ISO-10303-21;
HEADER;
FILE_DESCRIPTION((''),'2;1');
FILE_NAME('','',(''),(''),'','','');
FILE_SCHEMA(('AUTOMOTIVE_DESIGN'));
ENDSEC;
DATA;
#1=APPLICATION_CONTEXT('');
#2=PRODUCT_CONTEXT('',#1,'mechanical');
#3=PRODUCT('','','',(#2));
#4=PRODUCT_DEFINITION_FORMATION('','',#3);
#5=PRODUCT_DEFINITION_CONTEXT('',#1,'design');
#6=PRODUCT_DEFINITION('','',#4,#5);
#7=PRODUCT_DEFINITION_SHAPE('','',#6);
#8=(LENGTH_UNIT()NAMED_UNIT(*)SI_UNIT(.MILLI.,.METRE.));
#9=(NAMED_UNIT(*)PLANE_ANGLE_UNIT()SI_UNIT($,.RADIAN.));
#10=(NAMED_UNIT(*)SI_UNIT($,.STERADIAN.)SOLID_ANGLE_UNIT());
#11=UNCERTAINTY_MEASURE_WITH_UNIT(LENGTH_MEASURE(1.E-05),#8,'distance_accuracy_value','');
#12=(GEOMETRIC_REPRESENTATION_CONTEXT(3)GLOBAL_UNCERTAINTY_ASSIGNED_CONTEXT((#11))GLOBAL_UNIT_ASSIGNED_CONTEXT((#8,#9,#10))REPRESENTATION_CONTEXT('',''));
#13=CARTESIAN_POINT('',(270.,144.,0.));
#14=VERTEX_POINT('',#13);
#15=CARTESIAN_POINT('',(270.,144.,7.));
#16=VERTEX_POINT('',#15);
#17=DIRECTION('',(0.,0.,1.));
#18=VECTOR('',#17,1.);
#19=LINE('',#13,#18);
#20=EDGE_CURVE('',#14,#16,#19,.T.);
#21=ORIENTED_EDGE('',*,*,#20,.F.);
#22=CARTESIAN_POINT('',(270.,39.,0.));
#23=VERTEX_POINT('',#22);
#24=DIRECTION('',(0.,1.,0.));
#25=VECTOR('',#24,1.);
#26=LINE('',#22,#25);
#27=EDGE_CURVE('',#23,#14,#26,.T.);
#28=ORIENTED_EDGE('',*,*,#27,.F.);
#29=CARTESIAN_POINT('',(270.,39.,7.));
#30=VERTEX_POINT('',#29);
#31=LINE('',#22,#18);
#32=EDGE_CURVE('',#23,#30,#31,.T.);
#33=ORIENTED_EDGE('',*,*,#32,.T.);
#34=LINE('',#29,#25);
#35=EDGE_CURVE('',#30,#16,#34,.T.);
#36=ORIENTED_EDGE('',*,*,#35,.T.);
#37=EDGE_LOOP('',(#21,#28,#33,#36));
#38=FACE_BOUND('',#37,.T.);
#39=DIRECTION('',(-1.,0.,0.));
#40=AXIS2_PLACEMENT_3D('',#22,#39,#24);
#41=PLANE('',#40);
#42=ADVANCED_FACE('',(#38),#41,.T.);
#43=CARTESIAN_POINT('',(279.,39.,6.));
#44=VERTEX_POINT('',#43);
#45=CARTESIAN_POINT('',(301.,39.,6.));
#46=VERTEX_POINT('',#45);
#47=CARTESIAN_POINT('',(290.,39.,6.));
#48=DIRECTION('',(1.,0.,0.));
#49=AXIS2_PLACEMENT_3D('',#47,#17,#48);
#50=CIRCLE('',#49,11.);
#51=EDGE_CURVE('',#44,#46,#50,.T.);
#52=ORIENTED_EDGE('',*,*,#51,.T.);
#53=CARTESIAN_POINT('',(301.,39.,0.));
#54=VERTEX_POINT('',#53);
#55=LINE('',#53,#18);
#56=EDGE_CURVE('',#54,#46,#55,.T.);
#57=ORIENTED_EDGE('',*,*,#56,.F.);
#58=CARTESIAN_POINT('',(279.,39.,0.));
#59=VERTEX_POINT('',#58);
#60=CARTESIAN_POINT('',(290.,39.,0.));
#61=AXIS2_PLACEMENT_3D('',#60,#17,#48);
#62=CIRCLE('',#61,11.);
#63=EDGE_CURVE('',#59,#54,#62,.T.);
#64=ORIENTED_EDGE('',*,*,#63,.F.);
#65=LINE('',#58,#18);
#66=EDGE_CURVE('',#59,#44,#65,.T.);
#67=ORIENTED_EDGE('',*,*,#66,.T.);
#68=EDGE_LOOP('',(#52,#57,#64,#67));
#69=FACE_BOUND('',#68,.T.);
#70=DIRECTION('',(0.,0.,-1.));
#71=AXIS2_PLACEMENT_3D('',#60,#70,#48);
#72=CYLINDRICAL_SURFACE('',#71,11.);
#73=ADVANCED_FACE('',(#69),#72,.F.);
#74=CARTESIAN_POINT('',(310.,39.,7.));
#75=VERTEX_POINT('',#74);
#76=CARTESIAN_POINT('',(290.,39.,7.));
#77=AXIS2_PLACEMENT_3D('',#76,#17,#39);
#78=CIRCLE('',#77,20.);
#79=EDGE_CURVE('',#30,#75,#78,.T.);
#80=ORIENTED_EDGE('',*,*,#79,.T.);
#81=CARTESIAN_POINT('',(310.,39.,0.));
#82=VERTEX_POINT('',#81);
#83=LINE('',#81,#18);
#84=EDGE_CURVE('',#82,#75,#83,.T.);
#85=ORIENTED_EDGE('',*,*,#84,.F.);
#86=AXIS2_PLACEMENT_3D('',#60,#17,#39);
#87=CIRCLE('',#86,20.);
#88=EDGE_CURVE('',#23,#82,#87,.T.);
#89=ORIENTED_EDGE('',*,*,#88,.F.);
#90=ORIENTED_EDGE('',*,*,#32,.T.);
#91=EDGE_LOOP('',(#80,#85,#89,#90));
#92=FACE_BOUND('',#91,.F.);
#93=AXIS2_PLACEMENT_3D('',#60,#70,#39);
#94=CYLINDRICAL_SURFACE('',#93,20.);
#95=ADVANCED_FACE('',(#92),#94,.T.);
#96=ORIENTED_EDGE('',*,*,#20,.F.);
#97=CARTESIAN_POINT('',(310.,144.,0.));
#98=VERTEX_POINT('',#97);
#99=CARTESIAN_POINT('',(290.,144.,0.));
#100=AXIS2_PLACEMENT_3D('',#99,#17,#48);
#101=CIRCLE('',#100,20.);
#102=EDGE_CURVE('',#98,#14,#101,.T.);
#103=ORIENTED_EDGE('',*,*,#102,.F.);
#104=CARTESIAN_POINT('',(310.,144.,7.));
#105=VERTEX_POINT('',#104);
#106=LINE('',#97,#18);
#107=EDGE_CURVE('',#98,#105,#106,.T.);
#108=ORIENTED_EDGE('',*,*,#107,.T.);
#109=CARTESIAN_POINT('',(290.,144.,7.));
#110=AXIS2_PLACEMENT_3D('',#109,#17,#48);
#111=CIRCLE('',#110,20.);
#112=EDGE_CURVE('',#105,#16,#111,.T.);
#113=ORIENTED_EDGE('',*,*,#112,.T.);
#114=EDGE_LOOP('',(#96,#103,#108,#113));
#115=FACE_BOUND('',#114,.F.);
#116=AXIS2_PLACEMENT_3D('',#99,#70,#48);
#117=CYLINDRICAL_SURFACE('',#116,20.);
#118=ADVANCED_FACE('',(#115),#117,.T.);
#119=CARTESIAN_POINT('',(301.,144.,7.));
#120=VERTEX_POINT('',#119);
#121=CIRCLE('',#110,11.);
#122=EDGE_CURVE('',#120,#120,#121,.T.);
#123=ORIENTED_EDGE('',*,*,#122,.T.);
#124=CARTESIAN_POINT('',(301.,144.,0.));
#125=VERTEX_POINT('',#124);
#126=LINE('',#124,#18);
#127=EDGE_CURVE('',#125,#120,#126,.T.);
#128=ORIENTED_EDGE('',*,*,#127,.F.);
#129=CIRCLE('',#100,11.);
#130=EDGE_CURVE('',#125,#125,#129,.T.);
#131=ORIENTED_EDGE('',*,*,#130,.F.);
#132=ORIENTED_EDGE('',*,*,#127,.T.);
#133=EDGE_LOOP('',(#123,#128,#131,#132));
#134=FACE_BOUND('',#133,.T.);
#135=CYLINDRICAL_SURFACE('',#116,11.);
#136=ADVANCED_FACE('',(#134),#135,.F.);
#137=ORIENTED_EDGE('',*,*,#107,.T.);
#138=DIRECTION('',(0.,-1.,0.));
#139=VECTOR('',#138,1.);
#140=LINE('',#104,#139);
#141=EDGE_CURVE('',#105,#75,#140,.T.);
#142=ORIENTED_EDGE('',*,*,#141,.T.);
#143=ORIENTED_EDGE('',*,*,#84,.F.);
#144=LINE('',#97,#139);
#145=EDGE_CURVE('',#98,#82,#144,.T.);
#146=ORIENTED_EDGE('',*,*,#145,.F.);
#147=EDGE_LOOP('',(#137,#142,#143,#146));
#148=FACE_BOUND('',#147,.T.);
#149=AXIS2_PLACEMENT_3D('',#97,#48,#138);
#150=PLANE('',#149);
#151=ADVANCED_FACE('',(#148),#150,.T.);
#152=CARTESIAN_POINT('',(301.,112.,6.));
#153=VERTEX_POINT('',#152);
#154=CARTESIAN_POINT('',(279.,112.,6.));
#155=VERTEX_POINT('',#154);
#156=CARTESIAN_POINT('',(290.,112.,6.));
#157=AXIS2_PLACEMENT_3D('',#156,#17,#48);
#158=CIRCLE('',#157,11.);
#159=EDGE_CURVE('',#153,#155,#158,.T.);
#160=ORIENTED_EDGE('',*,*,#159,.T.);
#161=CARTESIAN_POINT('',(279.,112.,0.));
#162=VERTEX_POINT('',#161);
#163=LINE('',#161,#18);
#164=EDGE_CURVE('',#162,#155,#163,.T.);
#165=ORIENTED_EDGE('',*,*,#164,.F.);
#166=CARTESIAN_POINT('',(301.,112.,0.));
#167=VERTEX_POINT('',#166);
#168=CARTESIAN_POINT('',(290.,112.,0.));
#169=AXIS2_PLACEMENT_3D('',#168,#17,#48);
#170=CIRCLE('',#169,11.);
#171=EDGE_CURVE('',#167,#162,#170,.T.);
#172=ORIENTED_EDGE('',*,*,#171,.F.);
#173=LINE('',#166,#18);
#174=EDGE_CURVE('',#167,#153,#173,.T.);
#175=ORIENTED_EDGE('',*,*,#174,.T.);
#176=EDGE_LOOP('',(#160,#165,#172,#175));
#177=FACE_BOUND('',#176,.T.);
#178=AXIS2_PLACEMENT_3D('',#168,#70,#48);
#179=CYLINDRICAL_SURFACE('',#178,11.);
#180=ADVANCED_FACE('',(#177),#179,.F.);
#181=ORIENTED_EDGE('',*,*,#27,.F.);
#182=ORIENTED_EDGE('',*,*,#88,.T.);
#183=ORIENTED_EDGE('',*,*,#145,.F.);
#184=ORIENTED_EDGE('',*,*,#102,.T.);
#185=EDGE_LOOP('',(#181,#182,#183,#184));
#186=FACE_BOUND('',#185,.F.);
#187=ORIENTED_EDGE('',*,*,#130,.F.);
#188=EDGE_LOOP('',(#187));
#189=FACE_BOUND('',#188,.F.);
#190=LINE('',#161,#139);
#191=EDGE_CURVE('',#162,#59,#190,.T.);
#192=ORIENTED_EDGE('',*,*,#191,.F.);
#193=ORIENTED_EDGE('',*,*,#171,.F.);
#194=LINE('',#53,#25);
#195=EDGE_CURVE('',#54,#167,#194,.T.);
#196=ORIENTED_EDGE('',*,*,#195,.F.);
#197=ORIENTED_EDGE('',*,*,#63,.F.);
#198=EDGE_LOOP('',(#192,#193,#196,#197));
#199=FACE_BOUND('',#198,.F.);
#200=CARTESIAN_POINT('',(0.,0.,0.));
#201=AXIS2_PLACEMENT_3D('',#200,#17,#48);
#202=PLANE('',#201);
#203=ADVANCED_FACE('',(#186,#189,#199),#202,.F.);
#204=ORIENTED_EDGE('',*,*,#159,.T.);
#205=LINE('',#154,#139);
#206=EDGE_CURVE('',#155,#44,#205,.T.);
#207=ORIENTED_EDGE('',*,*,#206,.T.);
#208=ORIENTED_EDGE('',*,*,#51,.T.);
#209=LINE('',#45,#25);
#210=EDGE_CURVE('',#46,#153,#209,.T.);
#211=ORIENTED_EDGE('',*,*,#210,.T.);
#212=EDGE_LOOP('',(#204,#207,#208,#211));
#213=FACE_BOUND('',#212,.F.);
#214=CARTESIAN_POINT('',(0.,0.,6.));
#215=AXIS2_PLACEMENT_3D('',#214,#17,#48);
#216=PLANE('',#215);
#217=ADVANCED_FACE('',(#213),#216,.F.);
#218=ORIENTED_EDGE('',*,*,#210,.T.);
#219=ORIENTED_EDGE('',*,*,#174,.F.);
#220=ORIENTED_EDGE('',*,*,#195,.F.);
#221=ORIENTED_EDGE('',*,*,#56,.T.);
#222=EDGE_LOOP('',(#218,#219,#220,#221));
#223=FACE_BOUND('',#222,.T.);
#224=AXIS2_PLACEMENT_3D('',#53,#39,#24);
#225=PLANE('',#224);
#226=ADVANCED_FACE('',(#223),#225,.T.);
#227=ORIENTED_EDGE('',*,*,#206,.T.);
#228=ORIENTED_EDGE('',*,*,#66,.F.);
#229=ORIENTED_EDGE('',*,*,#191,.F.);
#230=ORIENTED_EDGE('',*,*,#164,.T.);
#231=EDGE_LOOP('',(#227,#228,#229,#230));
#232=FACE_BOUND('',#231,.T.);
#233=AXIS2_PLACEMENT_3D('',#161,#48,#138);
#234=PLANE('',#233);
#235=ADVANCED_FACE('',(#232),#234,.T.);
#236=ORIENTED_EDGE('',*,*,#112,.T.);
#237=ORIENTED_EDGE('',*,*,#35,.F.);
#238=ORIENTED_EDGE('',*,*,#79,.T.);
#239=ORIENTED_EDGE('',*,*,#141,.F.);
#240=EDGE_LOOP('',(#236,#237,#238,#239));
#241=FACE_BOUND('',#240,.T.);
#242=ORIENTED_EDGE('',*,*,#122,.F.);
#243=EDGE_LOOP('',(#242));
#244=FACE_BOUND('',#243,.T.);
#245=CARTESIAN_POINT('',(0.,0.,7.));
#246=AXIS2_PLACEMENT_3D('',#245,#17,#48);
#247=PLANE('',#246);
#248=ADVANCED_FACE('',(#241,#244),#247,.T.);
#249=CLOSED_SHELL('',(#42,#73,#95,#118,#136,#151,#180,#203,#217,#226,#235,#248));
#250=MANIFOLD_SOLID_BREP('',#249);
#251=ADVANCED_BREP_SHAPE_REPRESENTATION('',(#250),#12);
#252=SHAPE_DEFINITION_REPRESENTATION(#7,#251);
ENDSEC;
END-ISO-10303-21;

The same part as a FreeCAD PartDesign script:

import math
import FreeCAD as App
import Part
import Sketcher

doc = App.newDocument("Part")
body = doc.addObject("PartDesign::Body", "Body")

sketch1 = doc.addObject("Sketcher::SketchObject", "Sketch")
body.addObject(sketch1)
sketch1.AttachmentSupport = (doc.XY_Plane, [""])
sketch1.MapMode = "FlatFace"
sketch1.addGeometry(Part.LineSegment(App.Vector(310, 39, 0), App.Vector(310, 144, 0)), False)
sketch1.addGeometry(Part.ArcOfCircle(Part.Circle(App.Vector(290, 144, 0), App.Vector(0, 0, 1), 20), math.radians(0), math.radians(180)), False)
sketch1.addGeometry(Part.LineSegment(App.Vector(270, 144, 0), App.Vector(270, 39, 0)), False)
sketch1.addGeometry(Part.ArcOfCircle(Part.Circle(App.Vector(290, 39, 0), App.Vector(0, 0, 1), 20), math.radians(180), math.radians(360)), False)
sketch1.addGeometry(Part.Circle(App.Vector(290, 144, 0), App.Vector(0, 0, 1), 11), False)
sketch1.addConstraint(Sketcher.Constraint("Tangent", 0, 2, 1, 1))
sketch1.addConstraint(Sketcher.Constraint("Tangent", 1, 2, 2, 1))
sketch1.addConstraint(Sketcher.Constraint("Tangent", 2, 2, 3, 1))
sketch1.addConstraint(Sketcher.Constraint("Tangent", 3, 2, 0, 1))
sketch1.addConstraint(Sketcher.Constraint("Vertical", 0))
sketch1.addConstraint(Sketcher.Constraint("Vertical", 2))
sketch1.addConstraint(Sketcher.Constraint("Coincident", 4, 3, 1, 3))
sketch1.addConstraint(Sketcher.Constraint("Diameter", 4, 22.0))
sketch1.addConstraint(Sketcher.Constraint("Radius", 1, 20.0))
sketch1.addConstraint(Sketcher.Constraint("DistanceY", 0, 1, 0, 2, 105.0))
sketch1.addConstraint(Sketcher.Constraint("DistanceX", -1, 1, 1, 3, 290.0))
sketch1.addConstraint(Sketcher.Constraint("DistanceY", -1, 1, 1, 3, 144.0))
pad1 = doc.addObject("PartDesign::Pad", "Pad")
body.addObject(pad1)
pad1.Profile = sketch1
pad1.Length = 7

sketch2 = doc.addObject("Sketcher::SketchObject", "Sketch001")
body.addObject(sketch2)
sketch2.AttachmentSupport = (doc.XY_Plane, [""])
sketch2.MapMode = "FlatFace"
sketch2.addGeometry(Part.Circle(App.Vector(290, 144, 0), App.Vector(0, 0, 1), 11), False)
sketch2.addGeometry(Part.ArcOfCircle(Part.Circle(App.Vector(290, 39, 0), App.Vector(0, 0, 1), 11), math.radians(180), math.radians(360)), False)
sketch2.addGeometry(Part.LineSegment(App.Vector(301, 39, 0), App.Vector(301, 112, 0)), False)
sketch2.addGeometry(Part.ArcOfCircle(Part.Circle(App.Vector(290, 112, 0), App.Vector(0, 0, 1), 11), math.radians(0), math.radians(180)), False)
sketch2.addGeometry(Part.LineSegment(App.Vector(279, 112, 0), App.Vector(279, 39, 0)), False)
sketch2.addConstraint(Sketcher.Constraint("Tangent", 1, 2, 2, 1))
sketch2.addConstraint(Sketcher.Constraint("Tangent", 2, 2, 3, 1))
sketch2.addConstraint(Sketcher.Constraint("Tangent", 3, 2, 4, 1))
sketch2.addConstraint(Sketcher.Constraint("Tangent", 4, 2, 1, 1))
sketch2.addConstraint(Sketcher.Constraint("Vertical", 2))
sketch2.addConstraint(Sketcher.Constraint("Vertical", 4))
sketch2.addConstraint(Sketcher.Constraint("Equal", 0, 1))
sketch2.addConstraint(Sketcher.Constraint("Vertical", 0, 3, 1, 3))
sketch2.addConstraint(Sketcher.Constraint("Diameter", 0, 22.0))
sketch2.addConstraint(Sketcher.Constraint("DistanceY", 1, 3, 0, 3, 105.0))
sketch2.addConstraint(Sketcher.Constraint("DistanceY", 2, 1, 2, 2, 73.0))
sketch2.addConstraint(Sketcher.Constraint("DistanceX", -1, 1, 0, 3, 290.0))
sketch2.addConstraint(Sketcher.Constraint("DistanceY", -1, 1, 0, 3, 144.0))
pocket1 = doc.addObject("PartDesign::Pocket", "Pocket")
body.addObject(pocket1)
pocket1.Profile = sketch2
pocket1.Length = 6
pocket1.Reversed = True

doc.recompute()
